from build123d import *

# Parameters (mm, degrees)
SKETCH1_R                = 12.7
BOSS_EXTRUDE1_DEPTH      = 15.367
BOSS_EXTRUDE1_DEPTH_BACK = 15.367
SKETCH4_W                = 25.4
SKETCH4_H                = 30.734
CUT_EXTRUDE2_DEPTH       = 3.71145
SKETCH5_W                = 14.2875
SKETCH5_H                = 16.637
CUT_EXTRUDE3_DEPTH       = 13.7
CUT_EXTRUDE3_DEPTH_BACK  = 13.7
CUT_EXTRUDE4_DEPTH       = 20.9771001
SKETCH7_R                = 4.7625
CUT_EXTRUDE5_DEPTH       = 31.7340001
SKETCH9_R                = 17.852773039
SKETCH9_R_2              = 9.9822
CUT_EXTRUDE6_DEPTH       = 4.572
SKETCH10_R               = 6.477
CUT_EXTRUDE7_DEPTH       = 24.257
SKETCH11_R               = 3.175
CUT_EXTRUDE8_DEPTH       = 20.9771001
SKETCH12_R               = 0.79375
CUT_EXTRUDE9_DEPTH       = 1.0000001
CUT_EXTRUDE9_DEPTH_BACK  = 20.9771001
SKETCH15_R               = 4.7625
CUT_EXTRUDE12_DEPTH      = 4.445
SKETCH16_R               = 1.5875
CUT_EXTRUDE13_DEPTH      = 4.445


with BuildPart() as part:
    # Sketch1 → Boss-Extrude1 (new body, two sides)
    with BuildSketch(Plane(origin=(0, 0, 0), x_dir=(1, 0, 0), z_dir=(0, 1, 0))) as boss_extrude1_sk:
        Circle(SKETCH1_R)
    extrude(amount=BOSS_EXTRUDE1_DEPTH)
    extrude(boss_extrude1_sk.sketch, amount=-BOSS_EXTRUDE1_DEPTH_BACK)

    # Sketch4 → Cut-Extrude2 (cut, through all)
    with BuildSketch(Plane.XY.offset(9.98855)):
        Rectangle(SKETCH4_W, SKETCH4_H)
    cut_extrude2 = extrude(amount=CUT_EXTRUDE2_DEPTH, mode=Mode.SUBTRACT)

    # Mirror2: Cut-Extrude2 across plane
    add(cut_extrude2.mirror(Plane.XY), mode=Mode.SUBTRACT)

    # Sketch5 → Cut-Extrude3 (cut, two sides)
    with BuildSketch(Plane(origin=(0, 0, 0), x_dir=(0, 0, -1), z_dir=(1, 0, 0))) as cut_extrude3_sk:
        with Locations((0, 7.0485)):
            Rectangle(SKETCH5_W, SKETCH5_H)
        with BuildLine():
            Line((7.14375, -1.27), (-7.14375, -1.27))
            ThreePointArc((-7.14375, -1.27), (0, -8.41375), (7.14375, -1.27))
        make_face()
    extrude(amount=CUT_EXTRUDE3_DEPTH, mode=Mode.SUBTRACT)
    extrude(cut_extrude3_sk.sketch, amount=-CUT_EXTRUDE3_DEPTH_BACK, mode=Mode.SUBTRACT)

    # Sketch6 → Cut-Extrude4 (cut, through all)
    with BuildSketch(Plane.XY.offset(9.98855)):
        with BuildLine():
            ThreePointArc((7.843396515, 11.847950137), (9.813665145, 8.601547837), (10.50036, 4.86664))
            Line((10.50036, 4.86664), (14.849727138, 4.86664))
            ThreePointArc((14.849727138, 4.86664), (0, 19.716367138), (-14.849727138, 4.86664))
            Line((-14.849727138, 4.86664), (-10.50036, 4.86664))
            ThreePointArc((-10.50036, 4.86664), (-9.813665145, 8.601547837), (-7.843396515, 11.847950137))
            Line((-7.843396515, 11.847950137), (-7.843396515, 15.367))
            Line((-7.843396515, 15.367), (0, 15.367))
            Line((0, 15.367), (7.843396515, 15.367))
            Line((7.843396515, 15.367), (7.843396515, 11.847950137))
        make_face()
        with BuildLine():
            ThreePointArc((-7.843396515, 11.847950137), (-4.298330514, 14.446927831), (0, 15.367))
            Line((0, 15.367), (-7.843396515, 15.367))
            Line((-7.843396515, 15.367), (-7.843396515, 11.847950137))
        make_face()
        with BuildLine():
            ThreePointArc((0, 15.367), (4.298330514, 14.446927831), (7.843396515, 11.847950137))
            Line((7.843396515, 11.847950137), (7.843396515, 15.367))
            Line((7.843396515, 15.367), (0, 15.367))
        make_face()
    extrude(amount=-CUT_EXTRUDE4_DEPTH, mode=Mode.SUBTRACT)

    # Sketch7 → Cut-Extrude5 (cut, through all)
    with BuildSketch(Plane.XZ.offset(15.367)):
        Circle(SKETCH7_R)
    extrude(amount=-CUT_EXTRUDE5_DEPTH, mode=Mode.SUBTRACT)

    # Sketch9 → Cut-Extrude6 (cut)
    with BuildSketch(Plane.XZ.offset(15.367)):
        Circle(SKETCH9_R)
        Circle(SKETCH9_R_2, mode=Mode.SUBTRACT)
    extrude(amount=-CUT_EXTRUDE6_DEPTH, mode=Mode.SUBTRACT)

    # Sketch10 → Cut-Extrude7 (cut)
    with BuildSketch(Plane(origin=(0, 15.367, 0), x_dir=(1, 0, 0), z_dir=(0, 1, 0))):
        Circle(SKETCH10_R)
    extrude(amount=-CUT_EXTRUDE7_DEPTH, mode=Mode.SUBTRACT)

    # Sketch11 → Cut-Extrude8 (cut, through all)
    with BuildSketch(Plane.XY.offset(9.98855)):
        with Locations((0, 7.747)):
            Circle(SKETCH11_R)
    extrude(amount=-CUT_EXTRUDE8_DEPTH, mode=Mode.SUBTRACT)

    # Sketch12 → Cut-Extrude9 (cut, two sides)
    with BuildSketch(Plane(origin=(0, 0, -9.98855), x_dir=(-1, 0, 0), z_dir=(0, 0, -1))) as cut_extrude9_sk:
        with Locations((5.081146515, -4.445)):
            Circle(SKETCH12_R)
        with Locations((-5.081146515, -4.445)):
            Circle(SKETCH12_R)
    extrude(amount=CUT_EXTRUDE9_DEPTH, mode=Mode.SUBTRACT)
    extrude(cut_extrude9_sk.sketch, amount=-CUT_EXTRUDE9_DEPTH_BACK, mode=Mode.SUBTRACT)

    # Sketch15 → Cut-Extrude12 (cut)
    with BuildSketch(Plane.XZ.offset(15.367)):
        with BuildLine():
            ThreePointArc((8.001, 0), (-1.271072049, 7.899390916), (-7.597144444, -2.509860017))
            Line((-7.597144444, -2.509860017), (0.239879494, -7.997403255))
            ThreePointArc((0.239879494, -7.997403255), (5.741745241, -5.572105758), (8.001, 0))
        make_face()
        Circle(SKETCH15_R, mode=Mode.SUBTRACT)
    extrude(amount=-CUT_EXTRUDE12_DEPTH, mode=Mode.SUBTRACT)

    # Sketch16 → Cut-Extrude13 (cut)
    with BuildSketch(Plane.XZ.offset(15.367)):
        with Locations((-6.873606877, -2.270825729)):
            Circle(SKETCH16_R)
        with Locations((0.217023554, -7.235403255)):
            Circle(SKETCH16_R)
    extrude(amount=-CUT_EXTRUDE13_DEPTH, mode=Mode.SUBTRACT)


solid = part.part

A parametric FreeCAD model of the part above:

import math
import FreeCAD as App
import Part
import Sketcher
Q = App.Units.Quantity

doc = App.newDocument("Part")
body = doc.addObject("PartDesign::Body", "Body")

sketch1 = body.newObject("Sketcher::SketchObject", "Sketch")
sketch1.AttachmentSupport = (doc.getObject("XZ_Plane"), [""])
sketch1.MapMode = "FlatFace"
sketch1.addGeometry(Part.Circle(App.Vector(0, 0, 0), App.Vector(0, 0, 1), 12.7), False)
sketch1.addConstraint([
    Sketcher.Constraint("Coincident", 0, 3, -1, 1),
    Sketcher.Constraint("Diameter", 0, Q("1 in")),
])
pad1 = body.newObject("PartDesign::Pad", "Pad")
pad1.Profile = sketch1
pad1.Type = "TwoLengths"
pad1.Length = Q("0.605 in")
pad1.Length2 = Q("0.605 in")
pad1.Reversed = True

sketch2 = body.newObject("Sketcher::SketchObject", "Sketch001")
sketch2.AttachmentSupport = (doc.getObject("XY_Plane"), [""])
sketch2.MapMode = "FlatFace"
sketch2.AttachmentOffset = App.Placement(App.Vector(0, 0, 9.98855), App.Rotation())
sketch2.addGeometry([
    Part.LineSegment(App.Vector(-12.7, 15.367, 0), App.Vector(-12.7, -15.367, 0)),
    Part.LineSegment(App.Vector(-12.7, -15.367, 0), App.Vector(12.7, -15.367, 0)),
    Part.LineSegment(App.Vector(12.7, -15.367, 0), App.Vector(12.7, 15.367, 0)),
    Part.LineSegment(App.Vector(12.7, 15.367, 0), App.Vector(-12.7, 15.367, 0)),
], False)
sketch2.addConstraint([
    Sketcher.Constraint("Coincident", 0, 2, 1, 1),
    Sketcher.Constraint("Coincident", 1, 2, 2, 1),
    Sketcher.Constraint("Coincident", 2, 2, 3, 1),
    Sketcher.Constraint("Coincident", 3, 2, 0, 1),
    Sketcher.Constraint("Vertical", 0),
    Sketcher.Constraint("Horizontal", 1),
    Sketcher.Constraint("Vertical", 2),
    Sketcher.Constraint("Horizontal", 3),
    Sketcher.Constraint("Symmetric", 0, 2, 2, 2, -1, 1),
    Sketcher.Constraint("DistanceX", 1, 1, 1, 2, Q("1 in")),
    Sketcher.Constraint("DistanceY", 0, 2, 0, 1, Q("1.21 in")),
])
pocket1 = body.newObject("PartDesign::Pocket", "Pocket")
pocket1.Profile = sketch2
pocket1.Type = "ThroughAll"
pocket1.Reversed = True
doc.recompute()

mirrored = body.newObject("PartDesign::Mirrored", "Mirrored")
mirrored.Originals = [pocket1]
mirrored.MirrorPlane = (doc.getObject("XY_Plane"), [""])
body.Tip = mirrored

sketch3 = body.newObject("Sketcher::SketchObject", "Sketch002")
sketch3.AttachmentSupport = (doc.getObject("YZ_Plane"), [""])
sketch3.MapMode = "FlatFace"
sketch3.addGeometry([
    Part.LineSegment(App.Vector(15.367, 7.14375, 0), App.Vector(-1.27, 7.14375, 0)),
    Part.ArcOfCircle(Part.Circle(App.Vector(-1.27, 0, 0), App.Vector(0, 0, 1), 7.14375), math.radians(90), math.radians(270)),
    Part.LineSegment(App.Vector(-1.27, -7.14375, 0), App.Vector(15.367, -7.14375, 0)),
    Part.LineSegment(App.Vector(15.367, -7.14375, 0), App.Vector(15.367, 7.14375, 0)),
], False)
sketch3.addConstraint([
    Sketcher.Constraint("Tangent", 0, 2, 1, 1),
    Sketcher.Constraint("Tangent", 1, 2, 2, 1),
    Sketcher.Constraint("Coincident", 2, 2, 3, 1),
    Sketcher.Constraint("Coincident", 3, 2, 0, 1),
    Sketcher.Constraint("Horizontal", 0),
    Sketcher.Constraint("Horizontal", 2),
    Sketcher.Constraint("Vertical", 3),
    Sketcher.Constraint("PointOnObject", 1, 3, -1),
    Sketcher.Constraint("Radius", 1, Q("0.28125 in")),
    Sketcher.Constraint("DistanceX", 0, 2, 0, 1, Q("0.655 in")),
    Sketcher.Constraint("DistanceX", 1, 3, -1, 1, Q("0.05 in")),
])
pocket2 = body.newObject("PartDesign::Pocket", "Pocket001")
pocket2.Profile = sketch3
pocket2.Type = "ThroughAll"
pocket2.Midplane = True

sketch4 = body.newObject("Sketcher::SketchObject", "Sketch003")
sketch4.AttachmentSupport = (doc.getObject("XY_Plane"), [""])
sketch4.MapMode = "FlatFace"
sketch4.AttachmentOffset = App.Placement(App.Vector(0, 0, 9.98855), App.Rotation())
sketch4.addGeometry([
    Part.ArcOfCircle(Part.Circle(App.Vector(0, 4.86664, 0), App.Vector(0, 0, 1), 10.50036), math.radians(0), math.radians(41.671884)),
    Part.LineSegment(App.Vector(10.50036, 4.86664, 0), App.Vector(14.849727, 4.86664, 0)),
    Part.ArcOfCircle(Part.Circle(App.Vector(0, 4.86664, 0), App.Vector(0, 0, 1), 14.849727), math.radians(0), math.radians(180)),
    Part.LineSegment(App.Vector(-14.849727, 4.86664, 0), App.Vector(-10.50036, 4.86664, 0)),
    Part.ArcOfCircle(Part.Circle(App.Vector(0, 4.86664, 0), App.Vector(0, 0, 1), 10.50036), math.radians(138.328116), math.radians(180)),
    Part.ArcOfCircle(Part.Circle(App.Vector(0, 4.86664, 0), App.Vector(0, 0, 1), 10.50036), math.radians(90), math.radians(138.328116)),
    Part.ArcOfCircle(Part.Circle(App.Vector(0, 4.86664, 0), App.Vector(0, 0, 1), 10.50036), math.radians(41.671884), math.radians(90)),
], False)
sketch4.addConstraint([
    Sketcher.Constraint("Coincident", 0, 1, 1, 1),
    Sketcher.Constraint("Coincident", 1, 2, 2, 1),
    Sketcher.Constraint("Coincident", 2, 2, 3, 1),
    Sketcher.Constraint("Coincident", 3, 2, 4, 2),
    Sketcher.Constraint("Tangent", 4, 1, 5, 2),
    Sketcher.Constraint("Tangent", 5, 1, 6, 2),
    Sketcher.Constraint("Tangent", 6, 1, 0, 2),
    Sketcher.Constraint("Horizontal", 1),
    Sketcher.Constraint("Horizontal", 3),
    Sketcher.Constraint("Coincident", 2, 3, 0, 3),
    Sketcher.Constraint("Coincident", 4, 3, 0, 3),
    Sketcher.Constraint("Equal", 0, 4),
    Sketcher.Constraint("Symmetric", 1, 2, 2, 2, -2),
    Sketcher.Constraint("PointOnObject", 5, 1, -2),
    Sketcher.Constraint("Horizontal", 6, 3, 0, 1),
    Sketcher.Constraint("Horizontal", 4, 1, 6, 1),
    Sketcher.Constraint("Radius", 0, Q("0.4134 in")),
    Sketcher.Constraint("DistanceY", -1, 1, 5, 1, Q("0.605 in")),
    Sketcher.Constraint("Radius", 2, 14.849727),
    Sketcher.Constraint("DistanceY", -1, 1, 4, 1, 11.84795),
])
pocket3 = body.newObject("PartDesign::Pocket", "Pocket002")
pocket3.Profile = sketch4
pocket3.Type = "ThroughAll"

sketch5 = body.newObject("Sketcher::SketchObject", "Sketch004")
sketch5.AttachmentSupport = (doc.getObject("XZ_Plane"), [""])
sketch5.MapMode = "FlatFace"
sketch5.AttachmentOffset = App.Placement(App.Vector(0, 0, 0.605 * 25.4), App.Rotation())
sketch5.addGeometry(Part.Circle(App.Vector(0, 0, 0), App.Vector(0, 0, 1), 4.7625), False)
sketch5.addConstraint([
    Sketcher.Constraint("Coincident", 0, 3, -1, 1),
    Sketcher.Constraint("Diameter", 0, Q("0.375 in")),
])
pocket4 = body.newObject("PartDesign::Pocket", "Pocket003")
pocket4.Profile = sketch5
pocket4.Type = "ThroughAll"

sketch6 = body.newObject("Sketcher::SketchObject", "Sketch005")
sketch6.AttachmentSupport = (doc.getObject("XZ_Plane"), [""])
sketch6.MapMode = "FlatFace"
sketch6.AttachmentOffset = App.Placement(App.Vector(0, 0, 0.605 * 25.4), App.Rotation())
sketch6.addGeometry([
    Part.Circle(App.Vector(0, 0, 0), App.Vector(0, 0, 1), 17.852773),
    Part.Circle(App.Vector(0, 0, 0), App.Vector(0, 0, 1), 9.9822),
], False)
sketch6.addConstraint([
    Sketcher.Constraint("Coincident", 0, 3, -1, 1),
    Sketcher.Constraint("Coincident", 1, 3, -1, 1),
    Sketcher.Constraint("Diameter", 1, Q("0.786 in")),
    Sketcher.Constraint("Diameter", 0, 35.705546),
])
pocket5 = body.newObject("PartDesign::Pocket", "Pocket004")
pocket5.Profile = sketch6
pocket5.Length = Q("0.18 in")

sketch7 = body.newObject("Sketcher::SketchObject", "Sketch006")
sketch7.AttachmentSupport = (doc.getObject("XZ_Plane"), [""])
sketch7.MapMode = "FlatFace"
sketch7.AttachmentOffset = App.Placement(App.Vector(0, 0, -0.605 * 25.4), App.Rotation())
sketch7.addGeometry(Part.Circle(App.Vector(0, 0, 0), App.Vector(0, 0, 1), 6.477), False)
sketch7.addConstraint([
    Sketcher.Constraint("Coincident", 0, 3, -1, 1),
    Sketcher.Constraint("Diameter", 0, Q("0.51 in")),
])
pocket6 = body.newObject("PartDesign::Pocket", "Pocket005")
pocket6.Profile = sketch7
pocket6.Length = Q("0.955 in")
pocket6.Reversed = True

sketch8 = body.newObject("Sketcher::SketchObject", "Sketch007")
sketch8.AttachmentSupport = (doc.getObject("XY_Plane"), [""])
sketch8.MapMode = "FlatFace"
sketch8.AttachmentOffset = App.Placement(App.Vector(0, 0, 9.98855), App.Rotation())
sketch8.addGeometry(Part.Circle(App.Vector(0, 7.747, 0), App.Vector(0, 0, 1), 3.175), False)
sketch8.addConstraint([
    Sketcher.Constraint("PointOnObject", 0, 3, -2),
    Sketcher.Constraint("Diameter", 0, Q("0.25 in")),
    Sketcher.Constraint("DistanceY", -1, 1, 0, 3, Q("0.305 in")),
])
pocket7 = body.newObject("PartDesign::Pocket", "Pocket006")
pocket7.Profile = sketch8
pocket7.Type = "ThroughAll"

sketch9 = body.newObject("Sketcher::SketchObject", "Sketch008")
sketch9.AttachmentSupport = (doc.getObject("XY_Plane"), [""])
sketch9.MapMode = "FlatFace"
sketch9.AttachmentOffset = App.Placement(App.Vector(0, 0, -9.98855), App.Rotation())
sketch9.addGeometry([
    Part.Circle(App.Vector(-5.081147, -4.445, 0), App.Vector(0, 0, 1), 0.79375),
    Part.Circle(App.Vector(5.081147, -4.445, 0), App.Vector(0, 0, 1), 0.79375),
], False)
sketch9.addConstraint([
    Sketcher.Constraint("Equal", 0, 1),
    Sketcher.Constraint("Symmetric", 0, 3, 1, 3, -2),
    Sketcher.Constraint("Diameter", 0, Q("0.0625 in")),
    Sketcher.Constraint("DistanceY", 0, 3, -1, 1, Q("0.175 in")),
    Sketcher.Constraint("DistanceX", 0, 3, -1, 1, 5.081147),
])
pocket8 = body.newObject("PartDesign::Pocket", "Pocket007")
pocket8.Profile = sketch9
pocket8.Type = "ThroughAll"
pocket8.Midplane = True

sketch10 = body.newObject("Sketcher::SketchObject", "Sketch009")
sketch10.AttachmentSupport = (doc.getObject("XZ_Plane"), [""])
sketch10.MapMode = "FlatFace"
sketch10.AttachmentOffset = App.Placement(App.Vector(0, 0, 0.605 * 25.4), App.Rotation())
sketch10.addGeometry([
    Part.ArcOfCircle(Part.Circle(App.Vector(0, 0, 0), App.Vector(0, 0, 1), 8.001), math.radians(0), math.radians(198.281947)),
    Part.LineSegment(App.Vector(-7.597144, -2.50986, 0), App.Vector(0.239879, -7.997403, 0)),
    Part.ArcOfCircle(Part.Circle(App.Vector(0, 0, 0), App.Vector(0, 0, 1), 8.001), math.radians(-88.281947), math.radians(0)),
    Part.Circle(App.Vector(0, 0, 0), App.Vector(0, 0, 1), 4.7625),
], False)
sketch10.addConstraint([
    Sketcher.Constraint("Coincident", 0, 2, 1, 1),
    Sketcher.Constraint("Coincident", 1, 2, 2, 1),
    Sketcher.Constraint("Tangent", 2, 2, 0, 1),
    Sketcher.Constraint("Coincident", 0, 3, -1, 1),
    Sketcher.Constraint("Coincident", 3, 3, -1, 1),
    Sketcher.Constraint("Equal", 0, 2),
    Sketcher.Constraint("PointOnObject", 2, 2, -1),
    Sketcher.Constraint("Diameter", 3, Q("0.375 in")),
    Sketcher.Constraint("Angle", 1, Q("-35 deg")),
    Sketcher.Constraint("Radius", 0, Q("0.315 in")),
    Sketcher.Constraint("DistanceX", 0, 2, -1, 1, Q("0.2991002 in")),
])
pocket9 = body.newObject("PartDesign::Pocket", "Pocket008")
pocket9.Profile = sketch10
pocket9.Length = Q("0.175 in")

sketch11 = body.newObject("Sketcher::SketchObject", "Sketch010")
sketch11.AttachmentSupport = (doc.getObject("XZ_Plane"), [""])
sketch11.MapMode = "FlatFace"
sketch11.AttachmentOffset = App.Placement(App.Vector(0, 0, 0.605 * 25.4), App.Rotation())
sketch11.addGeometry([
    Part.Circle(App.Vector(-6.873607, -2.270826, 0), App.Vector(0, 0, 1), 1.5875),
    Part.Circle(App.Vector(0.217024, -7.235403, 0), App.Vector(0, 0, 1), 1.5875),
], False)
sketch11.addConstraint([
    Sketcher.Constraint("Equal", 0, 1),
    Sketcher.Constraint("Diameter", 0, Q("0.125 in")),
    Sketcher.Constraint("DistanceX", 0, 3, 1, 3, 7.09063),
    Sketcher.Constraint("DistanceX", 0, 3, -1, 1, 6.873607),
    Sketcher.Constraint("DistanceY", 0, 3, -1, 1, 2.270826),
    Sketcher.Constraint("DistanceY", 1, 3, -1, 1, 7.235403),
])
pocket10 = body.newObject("PartDesign::Pocket", "Pocket009")
pocket10.Profile = sketch11
pocket10.Length = Q("0.175 in")

doc.recompute()
